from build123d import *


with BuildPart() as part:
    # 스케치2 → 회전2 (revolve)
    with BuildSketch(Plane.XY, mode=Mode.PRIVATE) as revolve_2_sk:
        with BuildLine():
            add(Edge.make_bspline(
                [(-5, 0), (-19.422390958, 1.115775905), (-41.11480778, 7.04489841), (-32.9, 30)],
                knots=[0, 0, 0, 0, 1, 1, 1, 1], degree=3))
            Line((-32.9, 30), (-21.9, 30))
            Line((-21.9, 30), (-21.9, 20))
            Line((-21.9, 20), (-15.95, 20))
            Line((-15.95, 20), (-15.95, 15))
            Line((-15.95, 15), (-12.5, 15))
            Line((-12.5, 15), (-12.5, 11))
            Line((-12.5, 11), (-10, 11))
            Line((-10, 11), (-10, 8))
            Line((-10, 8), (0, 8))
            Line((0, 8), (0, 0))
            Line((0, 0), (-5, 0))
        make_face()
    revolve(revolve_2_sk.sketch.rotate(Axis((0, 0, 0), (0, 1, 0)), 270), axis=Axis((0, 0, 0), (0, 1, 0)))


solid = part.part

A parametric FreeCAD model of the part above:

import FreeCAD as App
import Part
import Sketcher
from FreeCAD import Vector

doc = App.newDocument("Part")
body = doc.addObject("PartDesign::Body", "Body")

# Sketch on XY plane
sketch1 = doc.addObject("Sketcher::SketchObject", "Sketch")
body.addObject(sketch1)
sketch1.AttachmentSupport = (doc.XY_Plane, [""])
sketch1.MapMode = "FlatFace"
sketch1.addGeometry([
    Part.BSplineCurve([Vector(-5, 0, 0), Vector(-19.422391, 1.115776, 0), Vector(-41.114808, 7.044898, 0), Vector(-32.9, 30, 0)], [4, 4], [0, 1], False, 3, [1, 1, 1, 1], False),  # 0
    Part.LineSegment(Vector(-5, 0, 0), Vector(0, 0, 0)),  # 1
    Part.LineSegment(Vector(0, 0, 0), Vector(0, 8, 0)),  # 2
    Part.LineSegment(Vector(0, 8, 0), Vector(-10, 8, 0)),  # 3
    Part.LineSegment(Vector(-10, 8, 0), Vector(-10, 11, 0)),  # 4
    Part.LineSegment(Vector(-10, 11, 0), Vector(-12.5, 11, 0)),  # 5
    Part.LineSegment(Vector(-12.5, 11, 0), Vector(-12.5, 15, 0)),  # 6
    Part.LineSegment(Vector(-12.5, 15, 0), Vector(-15.95, 15, 0)),  # 7
    Part.LineSegment(Vector(-15.95, 15, 0), Vector(-15.95, 20, 0)),  # 8
    Part.LineSegment(Vector(-15.95, 20, 0), Vector(-21.9, 20, 0)),  # 9
    Part.LineSegment(Vector(-21.9, 20, 0), Vector(-21.9, 30, 0)),  # 10
    Part.LineSegment(Vector(-21.9, 30, 0), Vector(-32.9, 30, 0)),  # 11
], False)
sketch1.addConstraint([
    Sketcher.Constraint("Block", 0),
    Sketcher.Constraint("Coincident", 0, 1, 1, 1),
    Sketcher.Constraint("Coincident", 1, 2, 2, 1),
    Sketcher.Constraint("Coincident", 2, 2, 3, 1),
    Sketcher.Constraint("Coincident", 3, 2, 4, 1),
    Sketcher.Constraint("Coincident", 4, 2, 5, 1),
    Sketcher.Constraint("Coincident", 5, 2, 6, 1),
    Sketcher.Constraint("Coincident", 6, 2, 7, 1),
    Sketcher.Constraint("Coincident", 7, 2, 8, 1),
    Sketcher.Constraint("Coincident", 8, 2, 9, 1),
    Sketcher.Constraint("Coincident", 9, 2, 10, 1),
    Sketcher.Constraint("Coincident", 10, 2, 11, 1),
    Sketcher.Constraint("Coincident", 11, 2, 0, 2),
    Sketcher.Constraint("Horizontal", 1),
    Sketcher.Constraint("Vertical", 2),
    Sketcher.Constraint("Horizontal", 3),
    Sketcher.Constraint("Vertical", 4),
    Sketcher.Constraint("Horizontal", 5),
    Sketcher.Constraint("Vertical", 6),
    Sketcher.Constraint("Horizontal", 7),
    Sketcher.Constraint("Vertical", 8),
    Sketcher.Constraint("Horizontal", 9),
    Sketcher.Constraint("Vertical", 10),
    Sketcher.Constraint("Horizontal", 11),
    Sketcher.Constraint("PointOnObject", 2, 2, -2),
    Sketcher.Constraint("Equal", 1, 8),
    Sketcher.Constraint("Equal", 3, 10),
    Sketcher.Constraint("DistanceX", 3, 2, 3, 1, 10.0),
    Sketcher.Constraint("DistanceX", 11, 2, 11, 1, 11.0),
    Sketcher.Constraint("DistanceY", 2, 1, 2, 2, 8.0),
    Sketcher.Constraint("DistanceY", 4, 1, 4, 2, 3.0),
    Sketcher.Constraint("DistanceX", 5, 2, 5, 1, 2.5),
    Sketcher.Constraint("DistanceX", 7, 2, 7, 1, 3.45),
])
revolution = doc.addObject("PartDesign::Revolution", "Revolution")
body.addObject(revolution)
revolution.Profile = sketch1
revolution.ReferenceAxis = (sketch1, ["V_Axis"])
revolution.Angle = 360

doc.recompute()
